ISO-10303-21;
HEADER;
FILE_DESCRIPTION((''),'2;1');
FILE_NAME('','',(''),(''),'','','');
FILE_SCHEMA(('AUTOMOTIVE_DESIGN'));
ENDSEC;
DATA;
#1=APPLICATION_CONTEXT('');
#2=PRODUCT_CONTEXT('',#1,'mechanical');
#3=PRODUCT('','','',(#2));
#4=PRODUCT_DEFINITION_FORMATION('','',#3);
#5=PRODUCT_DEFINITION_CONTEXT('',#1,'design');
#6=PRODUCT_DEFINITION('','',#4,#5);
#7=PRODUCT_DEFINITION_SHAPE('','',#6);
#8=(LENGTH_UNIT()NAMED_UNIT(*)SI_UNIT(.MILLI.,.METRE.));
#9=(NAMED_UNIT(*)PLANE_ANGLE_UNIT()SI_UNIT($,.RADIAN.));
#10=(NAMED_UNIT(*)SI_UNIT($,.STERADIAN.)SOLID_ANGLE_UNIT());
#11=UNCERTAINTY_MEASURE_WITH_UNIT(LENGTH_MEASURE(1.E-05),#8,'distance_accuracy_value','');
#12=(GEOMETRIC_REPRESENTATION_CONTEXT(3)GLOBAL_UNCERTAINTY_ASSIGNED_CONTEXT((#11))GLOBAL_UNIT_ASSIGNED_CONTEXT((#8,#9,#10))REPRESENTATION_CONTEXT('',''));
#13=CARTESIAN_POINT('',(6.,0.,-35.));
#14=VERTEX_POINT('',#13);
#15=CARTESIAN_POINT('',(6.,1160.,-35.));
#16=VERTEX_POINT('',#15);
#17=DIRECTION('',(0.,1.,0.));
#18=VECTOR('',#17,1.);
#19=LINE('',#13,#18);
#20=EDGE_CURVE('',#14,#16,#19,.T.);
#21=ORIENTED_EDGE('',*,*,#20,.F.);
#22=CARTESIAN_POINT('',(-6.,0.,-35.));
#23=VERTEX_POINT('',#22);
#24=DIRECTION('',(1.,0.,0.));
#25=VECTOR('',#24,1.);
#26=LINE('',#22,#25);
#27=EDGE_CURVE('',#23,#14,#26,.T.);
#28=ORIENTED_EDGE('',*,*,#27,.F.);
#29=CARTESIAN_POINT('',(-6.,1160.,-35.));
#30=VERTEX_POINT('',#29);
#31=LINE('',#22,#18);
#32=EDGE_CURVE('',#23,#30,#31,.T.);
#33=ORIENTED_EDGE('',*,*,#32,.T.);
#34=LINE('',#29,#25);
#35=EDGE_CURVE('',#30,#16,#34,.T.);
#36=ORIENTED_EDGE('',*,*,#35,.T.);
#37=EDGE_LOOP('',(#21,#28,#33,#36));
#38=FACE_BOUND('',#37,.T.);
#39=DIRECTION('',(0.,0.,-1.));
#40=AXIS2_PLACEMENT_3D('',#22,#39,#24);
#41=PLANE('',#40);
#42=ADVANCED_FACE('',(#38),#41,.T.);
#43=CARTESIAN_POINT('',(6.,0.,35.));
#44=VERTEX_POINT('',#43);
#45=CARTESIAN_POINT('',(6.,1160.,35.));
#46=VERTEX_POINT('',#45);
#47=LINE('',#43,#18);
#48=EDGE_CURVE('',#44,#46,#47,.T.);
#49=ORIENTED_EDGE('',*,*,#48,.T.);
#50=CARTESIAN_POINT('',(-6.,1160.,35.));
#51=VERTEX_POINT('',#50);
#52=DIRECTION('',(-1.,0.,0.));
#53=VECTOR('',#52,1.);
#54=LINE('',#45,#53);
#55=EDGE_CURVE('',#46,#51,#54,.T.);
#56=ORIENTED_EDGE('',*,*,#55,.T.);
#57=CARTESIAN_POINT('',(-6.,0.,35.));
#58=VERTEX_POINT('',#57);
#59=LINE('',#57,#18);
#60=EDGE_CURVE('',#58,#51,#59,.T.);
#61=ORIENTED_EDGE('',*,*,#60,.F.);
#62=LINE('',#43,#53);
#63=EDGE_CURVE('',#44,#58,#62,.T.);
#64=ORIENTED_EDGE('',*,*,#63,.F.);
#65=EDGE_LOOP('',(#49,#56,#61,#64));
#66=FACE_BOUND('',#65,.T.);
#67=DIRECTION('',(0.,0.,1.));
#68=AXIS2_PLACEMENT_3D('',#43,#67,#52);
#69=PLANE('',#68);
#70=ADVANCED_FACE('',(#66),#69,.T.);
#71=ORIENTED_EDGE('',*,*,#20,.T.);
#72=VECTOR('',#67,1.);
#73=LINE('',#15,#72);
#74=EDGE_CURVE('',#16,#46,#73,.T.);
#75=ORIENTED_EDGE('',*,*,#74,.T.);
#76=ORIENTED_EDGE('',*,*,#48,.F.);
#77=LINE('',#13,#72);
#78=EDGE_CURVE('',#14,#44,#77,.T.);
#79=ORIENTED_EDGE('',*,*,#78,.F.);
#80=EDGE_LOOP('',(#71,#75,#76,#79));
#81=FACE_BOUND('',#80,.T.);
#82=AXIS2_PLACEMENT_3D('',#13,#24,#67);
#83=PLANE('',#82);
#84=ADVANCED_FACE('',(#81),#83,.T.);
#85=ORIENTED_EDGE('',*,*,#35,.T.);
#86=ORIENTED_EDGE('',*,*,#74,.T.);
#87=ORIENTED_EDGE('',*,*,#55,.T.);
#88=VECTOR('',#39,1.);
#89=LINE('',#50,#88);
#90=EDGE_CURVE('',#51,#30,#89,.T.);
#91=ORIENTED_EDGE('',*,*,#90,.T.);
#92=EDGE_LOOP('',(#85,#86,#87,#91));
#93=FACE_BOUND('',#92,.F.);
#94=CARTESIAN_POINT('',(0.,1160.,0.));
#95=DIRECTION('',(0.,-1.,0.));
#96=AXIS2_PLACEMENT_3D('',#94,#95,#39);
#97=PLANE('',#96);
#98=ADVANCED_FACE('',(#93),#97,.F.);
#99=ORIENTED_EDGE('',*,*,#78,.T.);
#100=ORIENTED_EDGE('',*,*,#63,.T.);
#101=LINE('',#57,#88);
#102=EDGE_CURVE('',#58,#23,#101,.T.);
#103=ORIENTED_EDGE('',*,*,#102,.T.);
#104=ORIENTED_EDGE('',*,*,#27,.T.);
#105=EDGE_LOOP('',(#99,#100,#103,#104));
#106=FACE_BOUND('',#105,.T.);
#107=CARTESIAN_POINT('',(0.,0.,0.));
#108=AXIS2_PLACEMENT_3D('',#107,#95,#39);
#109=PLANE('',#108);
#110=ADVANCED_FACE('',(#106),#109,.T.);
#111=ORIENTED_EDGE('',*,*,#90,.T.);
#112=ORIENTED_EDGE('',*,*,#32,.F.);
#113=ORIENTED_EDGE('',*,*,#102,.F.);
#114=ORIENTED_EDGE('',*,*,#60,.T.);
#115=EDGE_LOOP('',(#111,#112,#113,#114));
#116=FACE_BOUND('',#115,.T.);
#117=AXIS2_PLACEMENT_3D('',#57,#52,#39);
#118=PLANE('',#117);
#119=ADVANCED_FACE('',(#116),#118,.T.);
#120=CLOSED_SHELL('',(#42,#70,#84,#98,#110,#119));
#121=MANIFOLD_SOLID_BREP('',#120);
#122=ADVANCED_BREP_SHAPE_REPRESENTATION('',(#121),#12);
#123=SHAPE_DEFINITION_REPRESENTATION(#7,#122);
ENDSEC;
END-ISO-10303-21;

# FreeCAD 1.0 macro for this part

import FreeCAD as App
import Part
import Sketcher
from FreeCAD import Vector
Q = App.Units.Quantity


def add_polygon(sketch, points):
    """Adds a closed chain of lines whose ends are joined by coincident constraints."""
    first, n = sketch.GeometryCount, len(points)
    for a, b in zip(points, points[1:] + points[:1]):
        sketch.addGeometry(Part.LineSegment(App.Vector(*a, 0), App.Vector(*b, 0)), False)
    for i in range(n):
        sketch.addConstraint(Sketcher.Constraint("Coincident", first + i, 2, first + (i + 1) % n, 1))

doc = App.newDocument("Part")
body = doc.addObject("PartDesign::Body", "Body")

# Sketch on XZ plane
sketch1 = doc.addObject("Sketcher::SketchObject", "Sketch")
body.addObject(sketch1)
sketch1.AttachmentSupport = (doc.XZ_Plane, [""])
sketch1.MapMode = "FlatFace"
add_polygon(sketch1, [(-6, 35), (-6, -35), (6, -35), (6, 35)])  # lines 0-3
sketch1.addConstraint([
    Sketcher.Constraint("Vertical", 0),
    Sketcher.Constraint("Horizontal", 1),
    Sketcher.Constraint("Vertical", 2),
    Sketcher.Constraint("Horizontal", 3),
    Sketcher.Constraint("Symmetric", 0, 2, 2, 2, -1, 1),
    Sketcher.Constraint("DistanceX", 1, 1, 1, 2, Q("12 mm")),
    Sketcher.Constraint("DistanceY", 0, 2, 0, 1, Q("70 mm")),
])
pad1 = doc.addObject("PartDesign::Pad", "Pad")
body.addObject(pad1)
pad1.Profile = sketch1
pad1.Length = 1160
pad1.Reversed = True

doc.recompute()
